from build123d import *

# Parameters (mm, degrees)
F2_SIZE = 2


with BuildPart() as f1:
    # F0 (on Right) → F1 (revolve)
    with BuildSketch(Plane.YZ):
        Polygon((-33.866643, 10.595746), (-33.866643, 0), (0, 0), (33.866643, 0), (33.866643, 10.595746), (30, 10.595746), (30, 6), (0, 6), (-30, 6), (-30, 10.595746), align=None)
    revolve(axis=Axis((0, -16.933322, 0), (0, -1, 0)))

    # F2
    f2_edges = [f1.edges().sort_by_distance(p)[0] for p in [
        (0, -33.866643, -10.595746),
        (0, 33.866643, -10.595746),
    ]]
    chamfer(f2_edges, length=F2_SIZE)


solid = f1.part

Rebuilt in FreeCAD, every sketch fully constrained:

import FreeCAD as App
import Part
import Sketcher
from FreeCAD import Vector
Q = App.Units.Quantity


def edges_at(feature, points):
    """Names of the edges that pass closest to the given points."""
    edges = feature.Shape.Edges
    near = lambda p: min(range(len(edges)), key=lambda i: edges[i].distToShape(Part.Vertex(*p))[0])
    return sorted({f"Edge{near(p) + 1}" for p in points})


def add_polygon(sketch, points):
    """Adds a closed chain of lines whose ends are joined by coincident constraints."""
    first, n = sketch.GeometryCount, len(points)
    for a, b in zip(points, points[1:] + points[:1]):
        sketch.addGeometry(Part.LineSegment(App.Vector(*a, 0), App.Vector(*b, 0)), False)
    for i in range(n):
        sketch.addConstraint(Sketcher.Constraint("Coincident", first + i, 2, first + (i + 1) % n, 1))

doc = App.newDocument("Part")
body = doc.addObject("PartDesign::Body", "Body")

# Sketch on YZ plane
sketch1 = doc.addObject("Sketcher::SketchObject", "Sketch")
body.addObject(sketch1)
sketch1.AttachmentSupport = (doc.YZ_Plane, [""])
sketch1.MapMode = "FlatFace"
add_polygon(sketch1, [(-33.866643, 10.595746), (-33.866643, 0), (33.866643, 0), (33.866643, 10.595746), (30, 10.595746), (30, 6), (-30, 6), (-30, 10.595746)])  # lines 0-7
sketch1.addConstraint([
    Sketcher.Constraint("Vertical", 0),
    Sketcher.Constraint("Horizontal", 1),
    Sketcher.Constraint("Vertical", 2),
    Sketcher.Constraint("Horizontal", 3),
    Sketcher.Constraint("Vertical", 4),
    Sketcher.Constraint("Horizontal", 5),
    Sketcher.Constraint("Vertical", 6),
    Sketcher.Constraint("Horizontal", 7),
    Sketcher.Constraint("Symmetric", 0, 2, 1, 2, -1, 1),
    Sketcher.Constraint("Symmetric", 3, 2, 6, 2, -2),
    Sketcher.Constraint("DistanceX", 5, 2, 5, 1, Q("60 mm")),
    Sketcher.Constraint("DistanceY", -1, 1, 4, 2, Q("6 mm")),
    Sketcher.Constraint("DistanceX", 1, 1, 1, 2, Q("67.733286 mm")),
    Sketcher.Constraint("DistanceY", 0, 2, 0, 1, Q("10.595746 mm")),
])
revolution = doc.addObject("PartDesign::Revolution", "Revolution")
body.addObject(revolution)
revolution.Profile = sketch1
revolution.ReferenceAxis = (sketch1, ["H_Axis"])
revolution.Angle = 360
doc.recompute()

chamfer = doc.addObject("PartDesign::Chamfer", "Chamfer")
body.addObject(chamfer)
chamfer.Base = (revolution, edges_at(revolution, [(0, -33.867, -10.596), (0, 33.867, -10.596)]))
chamfer.Size = 2

doc.recompute()
